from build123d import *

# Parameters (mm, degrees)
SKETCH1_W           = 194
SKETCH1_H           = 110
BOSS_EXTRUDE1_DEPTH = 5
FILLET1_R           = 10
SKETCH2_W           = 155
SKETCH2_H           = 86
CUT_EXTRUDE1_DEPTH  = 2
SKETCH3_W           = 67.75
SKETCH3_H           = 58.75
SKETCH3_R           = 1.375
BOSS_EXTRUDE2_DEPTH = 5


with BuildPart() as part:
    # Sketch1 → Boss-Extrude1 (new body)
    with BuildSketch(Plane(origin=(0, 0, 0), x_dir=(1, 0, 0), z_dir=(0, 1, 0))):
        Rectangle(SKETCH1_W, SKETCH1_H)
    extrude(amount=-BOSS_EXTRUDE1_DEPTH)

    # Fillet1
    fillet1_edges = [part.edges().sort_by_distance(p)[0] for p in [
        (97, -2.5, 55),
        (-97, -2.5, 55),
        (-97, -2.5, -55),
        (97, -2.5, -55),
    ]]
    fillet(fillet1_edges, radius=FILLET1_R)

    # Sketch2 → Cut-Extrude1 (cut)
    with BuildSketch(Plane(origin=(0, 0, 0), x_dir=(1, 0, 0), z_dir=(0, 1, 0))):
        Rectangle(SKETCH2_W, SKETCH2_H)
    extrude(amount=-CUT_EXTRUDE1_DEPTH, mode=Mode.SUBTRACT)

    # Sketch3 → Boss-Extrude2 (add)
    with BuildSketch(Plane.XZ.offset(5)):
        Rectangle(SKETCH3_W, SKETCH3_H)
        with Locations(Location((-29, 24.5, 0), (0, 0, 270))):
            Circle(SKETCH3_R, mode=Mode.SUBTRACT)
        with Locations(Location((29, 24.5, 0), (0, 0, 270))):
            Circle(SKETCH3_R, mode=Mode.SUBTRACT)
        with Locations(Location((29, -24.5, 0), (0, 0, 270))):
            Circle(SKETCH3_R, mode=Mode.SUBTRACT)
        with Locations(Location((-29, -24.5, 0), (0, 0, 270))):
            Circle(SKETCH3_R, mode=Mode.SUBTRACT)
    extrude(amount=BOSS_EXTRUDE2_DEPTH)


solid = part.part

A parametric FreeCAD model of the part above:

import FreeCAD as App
import Part
import Sketcher

V = App.Vector


def edges_at(feature, points):
    """Names of the edges that pass closest to the given points."""
    edges = feature.Shape.Edges
    near = lambda p: min(range(len(edges)), key=lambda i: edges[i].distToShape(Part.Vertex(*p))[0])
    return sorted({f"Edge{near(p) + 1}" for p in points})


def add_polygon(sketch, points):
    """Adds a closed chain of lines whose ends are joined by coincident constraints."""
    first, n = sketch.GeometryCount, len(points)
    for a, b in zip(points, points[1:] + points[:1]):
        sketch.addGeometry(Part.LineSegment(App.Vector(*a, 0), App.Vector(*b, 0)), False)
    for i in range(n):
        sketch.addConstraint(Sketcher.Constraint("Coincident", first + i, 2, first + (i + 1) % n, 1))

doc = App.newDocument("Part")
body = doc.addObject("PartDesign::Body", "Body")

# Sketch on XZ plane
sketch1 = body.newObject("Sketcher::SketchObject", "Sketch")
sketch1.AttachmentSupport = (doc.getObject("XZ_Plane"), [""])
sketch1.MapMode = "FlatFace"
add_polygon(sketch1, [(-97, -55), (-97, 55), (97, 55), (97, -55)])  # lines 0-3
sketch1.addConstraint([
    Sketcher.Constraint("Vertical", 0),
    Sketcher.Constraint("Horizontal", 1),
    Sketcher.Constraint("Vertical", 2),
    Sketcher.Constraint("Horizontal", 3),
    Sketcher.Constraint("Symmetric", 0, 2, 2, 2, -1, 1),
    Sketcher.Constraint("DistanceX", 1, 1, 1, 2, 194.0),
    Sketcher.Constraint("DistanceY", 0, 1, 0, 2, 110.0),
])
pad1 = body.newObject("PartDesign::Pad", "Pad")
pad1.Profile = sketch1
pad1.Length = 5
doc.recompute()

fillet = body.newObject("PartDesign::Fillet", "Fillet")
fillet.Base = (pad1, edges_at(pad1, [
    (97, -2.5, 55),
    (-97, -2.5, 55),
    (-97, -2.5, -55),
    (97, -2.5, -55),
]))
fillet.Radius = 10

# Sketch on XZ plane
sketch2 = body.newObject("Sketcher::SketchObject", "Sketch001")
sketch2.AttachmentSupport = (doc.getObject("XZ_Plane"), [""])
sketch2.MapMode = "FlatFace"
add_polygon(sketch2, [(-77.5, -43), (-77.5, 43), (77.5, 43), (77.5, -43)])  # lines 0-3
sketch2.addConstraint([
    Sketcher.Constraint("Vertical", 0),
    Sketcher.Constraint("Horizontal", 1),
    Sketcher.Constraint("Vertical", 2),
    Sketcher.Constraint("Horizontal", 3),
    Sketcher.Constraint("Symmetric", 0, 2, 2, 2, -1, 1),
    Sketcher.Constraint("DistanceX", 1, 1, 1, 2, 155.0),
    Sketcher.Constraint("DistanceY", 0, 1, 0, 2, 86.0),
])
pocket1 = body.newObject("PartDesign::Pocket", "Pocket")
pocket1.Profile = sketch2
pocket1.Length = 2
pocket1.Reversed = True

# Sketch on XZ plane
sketch3 = body.newObject("Sketcher::SketchObject", "Sketch002")
sketch3.AttachmentSupport = (doc.getObject("XZ_Plane"), [""])
sketch3.MapMode = "FlatFace"
sketch3.AttachmentOffset = App.Placement(V(0, 0, 5), App.Rotation())
add_polygon(sketch3, [(-33.875, 29.375), (-33.875, -29.375), (33.875, -29.375), (33.875, 29.375)])  # lines 0-3
sketch3.addGeometry(Part.Circle(V(-29, -24.5, 0), V(0, 0, 1), 1.375), False)  # 4
sketch3.addGeometry(Part.Circle(V(29, -24.5, 0), V(0, 0, 1), 1.375), False)  # 5
sketch3.addGeometry(Part.Circle(V(-29, 24.5, 0), V(0, 0, 1), 1.375), False)  # 6
sketch3.addGeometry(Part.Circle(V(29, 24.5, 0), V(0, 0, 1), 1.375), False)  # 7
sketch3.addConstraint([
    Sketcher.Constraint("Vertical", 0),
    Sketcher.Constraint("Horizontal", 1),
    Sketcher.Constraint("Vertical", 2),
    Sketcher.Constraint("Horizontal", 3),
    Sketcher.Constraint("Equal", 4, 5),
    Sketcher.Constraint("Equal", 5, 6),
    Sketcher.Constraint("Equal", 6, 7),
    Sketcher.Constraint("Symmetric", 5, 3, 6, 3, -1, 1),
    Sketcher.Constraint("Symmetric", 4, 3, 7, 3, -1, 1),
    Sketcher.Constraint("Symmetric", 0, 2, 2, 2, -1, 1),
    Sketcher.Constraint("Symmetric", 4, 3, 5, 3, -2),
    Sketcher.Constraint("Diameter", 4, 2.75),
    Sketcher.Constraint("DistanceX", 4, 3, -1, 1, 29.0),
    Sketcher.Constraint("DistanceY", 4, 3, 6, 3, 49.0),
    Sketcher.Constraint("DistanceX", 1, 1, 1, 2, 67.75),
    Sketcher.Constraint("DistanceY", 0, 2, 0, 1, 58.75),
])
pad2 = body.newObject("PartDesign::Pad", "Pad001")
pad2.Profile = sketch3
pad2.Length = 5

doc.recompute()
